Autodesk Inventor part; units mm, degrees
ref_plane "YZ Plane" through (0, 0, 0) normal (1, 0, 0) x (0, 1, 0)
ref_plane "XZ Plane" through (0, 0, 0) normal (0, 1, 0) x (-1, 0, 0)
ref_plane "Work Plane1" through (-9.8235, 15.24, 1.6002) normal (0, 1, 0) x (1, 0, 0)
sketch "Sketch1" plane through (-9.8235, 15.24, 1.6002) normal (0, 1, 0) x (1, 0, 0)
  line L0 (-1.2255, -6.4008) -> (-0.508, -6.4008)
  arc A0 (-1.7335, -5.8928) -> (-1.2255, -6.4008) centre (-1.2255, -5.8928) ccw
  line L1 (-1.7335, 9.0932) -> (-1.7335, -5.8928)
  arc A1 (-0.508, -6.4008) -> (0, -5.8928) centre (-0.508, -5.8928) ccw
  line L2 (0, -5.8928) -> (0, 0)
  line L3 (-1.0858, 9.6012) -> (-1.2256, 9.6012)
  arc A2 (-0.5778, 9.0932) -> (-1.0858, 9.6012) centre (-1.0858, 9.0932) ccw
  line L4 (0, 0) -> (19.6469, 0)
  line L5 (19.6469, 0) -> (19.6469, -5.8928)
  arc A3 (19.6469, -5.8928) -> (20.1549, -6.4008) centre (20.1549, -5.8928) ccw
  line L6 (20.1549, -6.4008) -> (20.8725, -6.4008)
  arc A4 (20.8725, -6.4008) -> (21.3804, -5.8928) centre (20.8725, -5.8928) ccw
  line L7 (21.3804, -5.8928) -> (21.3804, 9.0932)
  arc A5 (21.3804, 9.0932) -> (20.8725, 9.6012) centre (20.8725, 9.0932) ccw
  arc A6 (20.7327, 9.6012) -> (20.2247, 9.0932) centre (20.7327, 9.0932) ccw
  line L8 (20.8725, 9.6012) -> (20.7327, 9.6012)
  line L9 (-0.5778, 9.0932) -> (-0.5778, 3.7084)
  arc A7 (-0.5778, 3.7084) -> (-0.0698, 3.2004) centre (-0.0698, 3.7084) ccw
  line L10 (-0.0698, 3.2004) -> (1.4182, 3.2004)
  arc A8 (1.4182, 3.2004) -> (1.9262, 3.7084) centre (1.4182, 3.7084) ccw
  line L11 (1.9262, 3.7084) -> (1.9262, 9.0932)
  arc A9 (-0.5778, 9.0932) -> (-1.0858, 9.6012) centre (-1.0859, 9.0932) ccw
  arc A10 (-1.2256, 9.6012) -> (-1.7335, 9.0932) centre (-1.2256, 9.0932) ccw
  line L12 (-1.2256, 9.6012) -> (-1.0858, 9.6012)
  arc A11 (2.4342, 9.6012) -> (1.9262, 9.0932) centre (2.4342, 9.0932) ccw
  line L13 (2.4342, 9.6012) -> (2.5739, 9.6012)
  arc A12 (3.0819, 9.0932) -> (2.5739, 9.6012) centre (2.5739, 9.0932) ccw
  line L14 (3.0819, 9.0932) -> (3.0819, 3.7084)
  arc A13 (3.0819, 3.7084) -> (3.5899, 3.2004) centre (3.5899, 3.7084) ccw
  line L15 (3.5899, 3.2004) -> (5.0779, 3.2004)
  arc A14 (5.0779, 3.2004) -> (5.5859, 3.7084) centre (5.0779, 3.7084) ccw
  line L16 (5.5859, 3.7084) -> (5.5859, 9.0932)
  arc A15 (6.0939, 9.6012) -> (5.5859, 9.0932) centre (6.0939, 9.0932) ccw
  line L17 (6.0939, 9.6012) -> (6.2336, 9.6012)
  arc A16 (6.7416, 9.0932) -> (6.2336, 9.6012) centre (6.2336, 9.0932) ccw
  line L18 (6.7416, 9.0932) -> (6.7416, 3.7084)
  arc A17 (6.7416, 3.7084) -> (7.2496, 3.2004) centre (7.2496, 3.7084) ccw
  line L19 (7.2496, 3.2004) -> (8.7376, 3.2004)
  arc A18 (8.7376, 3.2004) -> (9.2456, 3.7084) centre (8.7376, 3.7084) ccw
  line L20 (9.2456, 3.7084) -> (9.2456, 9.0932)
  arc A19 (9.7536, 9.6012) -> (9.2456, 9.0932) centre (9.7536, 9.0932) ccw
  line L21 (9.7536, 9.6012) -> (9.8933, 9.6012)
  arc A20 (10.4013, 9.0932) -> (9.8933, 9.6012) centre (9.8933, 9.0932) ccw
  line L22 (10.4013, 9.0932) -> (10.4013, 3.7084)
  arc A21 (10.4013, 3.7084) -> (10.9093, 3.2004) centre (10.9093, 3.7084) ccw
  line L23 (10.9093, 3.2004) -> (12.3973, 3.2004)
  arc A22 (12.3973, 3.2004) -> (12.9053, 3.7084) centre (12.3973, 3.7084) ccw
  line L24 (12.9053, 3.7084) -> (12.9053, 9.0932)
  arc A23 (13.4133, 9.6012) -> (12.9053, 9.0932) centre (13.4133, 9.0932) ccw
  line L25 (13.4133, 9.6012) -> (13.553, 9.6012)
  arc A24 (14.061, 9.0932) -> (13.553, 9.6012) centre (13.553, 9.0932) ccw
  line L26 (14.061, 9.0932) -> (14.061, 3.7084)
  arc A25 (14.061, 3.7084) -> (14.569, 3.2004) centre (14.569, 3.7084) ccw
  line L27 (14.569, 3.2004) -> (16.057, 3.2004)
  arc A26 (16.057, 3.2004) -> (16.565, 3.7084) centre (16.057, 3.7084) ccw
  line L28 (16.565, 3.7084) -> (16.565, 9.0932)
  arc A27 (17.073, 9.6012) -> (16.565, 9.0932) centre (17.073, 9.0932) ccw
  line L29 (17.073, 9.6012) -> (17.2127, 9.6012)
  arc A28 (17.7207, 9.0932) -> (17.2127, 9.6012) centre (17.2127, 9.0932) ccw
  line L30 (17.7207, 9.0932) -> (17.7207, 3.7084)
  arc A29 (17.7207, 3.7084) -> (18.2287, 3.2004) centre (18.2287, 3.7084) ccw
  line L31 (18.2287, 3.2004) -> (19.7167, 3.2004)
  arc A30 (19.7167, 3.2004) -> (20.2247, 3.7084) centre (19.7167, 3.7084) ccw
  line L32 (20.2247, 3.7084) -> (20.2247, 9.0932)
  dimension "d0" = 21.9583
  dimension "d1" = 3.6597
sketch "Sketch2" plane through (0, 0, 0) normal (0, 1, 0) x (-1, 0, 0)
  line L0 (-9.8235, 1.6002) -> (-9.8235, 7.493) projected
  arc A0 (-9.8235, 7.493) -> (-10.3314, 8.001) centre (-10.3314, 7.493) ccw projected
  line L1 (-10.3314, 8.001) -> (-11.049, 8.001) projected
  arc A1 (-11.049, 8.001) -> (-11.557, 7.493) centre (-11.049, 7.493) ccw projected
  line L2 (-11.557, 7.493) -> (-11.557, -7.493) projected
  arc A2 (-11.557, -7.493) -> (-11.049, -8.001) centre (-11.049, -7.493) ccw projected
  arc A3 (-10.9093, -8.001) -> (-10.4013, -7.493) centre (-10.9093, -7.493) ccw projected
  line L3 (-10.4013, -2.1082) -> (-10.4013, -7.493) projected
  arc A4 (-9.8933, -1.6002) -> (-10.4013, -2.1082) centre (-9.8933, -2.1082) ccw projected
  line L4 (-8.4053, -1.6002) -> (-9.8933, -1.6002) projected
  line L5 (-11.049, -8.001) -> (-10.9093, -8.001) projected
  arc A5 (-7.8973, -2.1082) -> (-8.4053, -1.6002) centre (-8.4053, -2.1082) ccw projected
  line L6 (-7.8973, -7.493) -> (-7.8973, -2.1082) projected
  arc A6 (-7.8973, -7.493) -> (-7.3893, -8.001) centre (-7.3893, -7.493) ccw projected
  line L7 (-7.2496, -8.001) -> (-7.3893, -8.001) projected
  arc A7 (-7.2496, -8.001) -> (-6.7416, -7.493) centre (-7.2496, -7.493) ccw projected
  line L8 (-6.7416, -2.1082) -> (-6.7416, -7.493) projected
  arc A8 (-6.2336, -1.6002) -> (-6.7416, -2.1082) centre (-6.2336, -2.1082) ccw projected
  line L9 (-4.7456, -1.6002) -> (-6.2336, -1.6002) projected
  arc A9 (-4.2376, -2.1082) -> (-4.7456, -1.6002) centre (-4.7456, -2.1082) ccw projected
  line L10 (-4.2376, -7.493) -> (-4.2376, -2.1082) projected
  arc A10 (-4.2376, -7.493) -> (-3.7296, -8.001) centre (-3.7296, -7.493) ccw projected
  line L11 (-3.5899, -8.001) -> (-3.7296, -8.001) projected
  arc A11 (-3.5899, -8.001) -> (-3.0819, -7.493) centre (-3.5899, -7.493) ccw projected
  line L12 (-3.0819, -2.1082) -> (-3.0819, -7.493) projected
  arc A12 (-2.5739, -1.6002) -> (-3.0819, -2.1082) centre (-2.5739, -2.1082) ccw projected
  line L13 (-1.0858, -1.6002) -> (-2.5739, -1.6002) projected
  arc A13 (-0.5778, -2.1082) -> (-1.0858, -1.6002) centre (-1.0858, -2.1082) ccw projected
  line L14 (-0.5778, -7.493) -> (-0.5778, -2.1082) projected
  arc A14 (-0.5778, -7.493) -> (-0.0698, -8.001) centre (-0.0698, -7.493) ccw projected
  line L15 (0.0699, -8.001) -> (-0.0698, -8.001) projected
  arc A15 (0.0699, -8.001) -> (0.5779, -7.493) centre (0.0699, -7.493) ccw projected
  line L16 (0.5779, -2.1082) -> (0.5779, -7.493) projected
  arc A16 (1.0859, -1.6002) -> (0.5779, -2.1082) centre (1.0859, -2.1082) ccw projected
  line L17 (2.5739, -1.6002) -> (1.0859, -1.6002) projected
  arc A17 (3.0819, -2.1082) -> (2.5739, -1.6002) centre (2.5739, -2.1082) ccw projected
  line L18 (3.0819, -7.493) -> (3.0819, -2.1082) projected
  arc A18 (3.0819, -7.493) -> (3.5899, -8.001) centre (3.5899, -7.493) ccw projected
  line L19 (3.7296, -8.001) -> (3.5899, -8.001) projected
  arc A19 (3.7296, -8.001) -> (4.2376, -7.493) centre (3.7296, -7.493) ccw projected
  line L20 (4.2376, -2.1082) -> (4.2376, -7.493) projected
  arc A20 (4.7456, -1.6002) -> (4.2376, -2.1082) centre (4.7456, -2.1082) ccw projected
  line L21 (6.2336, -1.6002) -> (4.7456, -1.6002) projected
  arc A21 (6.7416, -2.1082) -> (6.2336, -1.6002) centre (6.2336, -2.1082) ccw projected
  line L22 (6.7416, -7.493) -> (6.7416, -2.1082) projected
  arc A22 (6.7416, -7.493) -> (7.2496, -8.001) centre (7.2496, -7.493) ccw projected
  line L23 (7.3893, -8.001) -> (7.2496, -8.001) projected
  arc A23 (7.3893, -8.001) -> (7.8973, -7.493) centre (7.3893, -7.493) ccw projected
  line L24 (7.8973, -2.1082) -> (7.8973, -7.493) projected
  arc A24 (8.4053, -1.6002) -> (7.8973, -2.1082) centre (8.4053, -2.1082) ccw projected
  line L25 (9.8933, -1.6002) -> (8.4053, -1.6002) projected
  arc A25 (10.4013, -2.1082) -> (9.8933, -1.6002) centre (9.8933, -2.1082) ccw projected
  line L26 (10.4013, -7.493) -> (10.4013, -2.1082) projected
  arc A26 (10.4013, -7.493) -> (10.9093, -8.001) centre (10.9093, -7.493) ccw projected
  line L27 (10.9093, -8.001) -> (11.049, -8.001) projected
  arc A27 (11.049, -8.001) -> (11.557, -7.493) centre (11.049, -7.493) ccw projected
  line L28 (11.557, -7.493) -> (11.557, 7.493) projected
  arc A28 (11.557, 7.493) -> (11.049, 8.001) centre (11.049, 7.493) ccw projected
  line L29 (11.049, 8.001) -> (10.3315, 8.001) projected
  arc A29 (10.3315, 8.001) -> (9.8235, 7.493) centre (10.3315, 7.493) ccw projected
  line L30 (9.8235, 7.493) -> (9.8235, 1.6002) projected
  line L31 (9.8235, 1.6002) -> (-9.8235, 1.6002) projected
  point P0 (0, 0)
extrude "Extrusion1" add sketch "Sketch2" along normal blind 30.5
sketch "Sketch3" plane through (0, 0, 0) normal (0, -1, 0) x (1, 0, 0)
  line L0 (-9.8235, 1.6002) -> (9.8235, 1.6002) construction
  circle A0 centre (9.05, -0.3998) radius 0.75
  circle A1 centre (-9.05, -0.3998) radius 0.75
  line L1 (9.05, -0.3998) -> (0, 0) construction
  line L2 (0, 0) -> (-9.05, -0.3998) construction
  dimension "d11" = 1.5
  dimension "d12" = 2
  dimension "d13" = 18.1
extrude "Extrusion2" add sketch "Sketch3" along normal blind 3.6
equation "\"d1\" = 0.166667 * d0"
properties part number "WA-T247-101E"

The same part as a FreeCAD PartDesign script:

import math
import FreeCAD as App
import Part
import Sketcher
Q = App.Units.Quantity

doc = App.newDocument("Part")
body = doc.addObject("PartDesign::Body", "Body")

sketch1 = body.newObject("Sketcher::SketchObject", "Sketch")
sketch1.AttachmentSupport = (doc.getObject("XZ_Plane"), [""])
sketch1.MapMode = "FlatFace"
sketch1.addGeometry([
    Part.LineSegment(App.Vector(-9.8235, 1.6002, 0), App.Vector(9.8235, 1.6002, 0)),
    Part.LineSegment(App.Vector(9.8235, 1.6002, 0), App.Vector(9.8235, 7.493, 0)),
    Part.ArcOfCircle(Part.Circle(App.Vector(10.3314, 7.493, 0), App.Vector(0, 0, 1), 0.5079), math.radians(90), math.radians(180)),
    Part.LineSegment(App.Vector(10.3314, 8.001, 0), App.Vector(11.049, 8.001, 0)),
    Part.ArcOfCircle(Part.Circle(App.Vector(11.049, 7.493, 0), App.Vector(0, 0, 1), 0.508), math.radians(0), math.radians(90)),
    Part.LineSegment(App.Vector(11.557, 7.493, 0), App.Vector(11.557, -7.493, 0)),
    Part.ArcOfCircle(Part.Circle(App.Vector(11.049, -7.493, 0), App.Vector(0, 0, 1), 0.508), math.radians(-90), math.radians(0)),
    Part.LineSegment(App.Vector(11.049, -8.001, 0), App.Vector(10.9093, -8.001, 0)),
    Part.ArcOfCircle(Part.Circle(App.Vector(10.9093, -7.493, 0), App.Vector(0, 0, 1), 0.508), math.radians(180), math.radians(270)),
    Part.LineSegment(App.Vector(10.4013, -7.493, 0), App.Vector(10.4013, -2.1082, 0)),
    Part.ArcOfCircle(Part.Circle(App.Vector(9.8933, -2.1082, 0), App.Vector(0, 0, 1), 0.508), math.radians(0), math.radians(90)),
    Part.LineSegment(App.Vector(9.8933, -1.6002, 0), App.Vector(8.4053, -1.6002, 0)),
    Part.ArcOfCircle(Part.Circle(App.Vector(8.4053, -2.1082, 0), App.Vector(0, 0, 1), 0.508), math.radians(90), math.radians(180)),
    Part.LineSegment(App.Vector(7.8973, -2.1082, 0), App.Vector(7.8973, -7.493, 0)),
    Part.ArcOfCircle(Part.Circle(App.Vector(7.3893, -7.493, 0), App.Vector(0, 0, 1), 0.508), math.radians(-90), math.radians(0)),
    Part.LineSegment(App.Vector(7.3893, -8.001, 0), App.Vector(7.2496, -8.001, 0)),
    Part.ArcOfCircle(Part.Circle(App.Vector(7.2496, -7.493, 0), App.Vector(0, 0, 1), 0.508), math.radians(180), math.radians(270)),
    Part.LineSegment(App.Vector(6.7416, -7.493, 0), App.Vector(6.7416, -2.1082, 0)),
    Part.ArcOfCircle(Part.Circle(App.Vector(6.2336, -2.1082, 0), App.Vector(0, 0, 1), 0.508), math.radians(0), math.radians(90)),
    Part.LineSegment(App.Vector(6.2336, -1.6002, 0), App.Vector(4.7456, -1.6002, 0)),
    Part.ArcOfCircle(Part.Circle(App.Vector(4.7456, -2.1082, 0), App.Vector(0, 0, 1), 0.508), math.radians(90), math.radians(180)),
    Part.LineSegment(App.Vector(4.2376, -2.1082, 0), App.Vector(4.2376, -7.493, 0)),
    Part.ArcOfCircle(Part.Circle(App.Vector(3.7296, -7.493, 0), App.Vector(0, 0, 1), 0.508), math.radians(-90), math.radians(0)),
    Part.LineSegment(App.Vector(3.7296, -8.001, 0), App.Vector(3.5899, -8.001, 0)),
    Part.ArcOfCircle(Part.Circle(App.Vector(3.5899, -7.493, 0), App.Vector(0, 0, 1), 0.508), math.radians(180), math.radians(270)),
    Part.LineSegment(App.Vector(3.0819, -7.493, 0), App.Vector(3.0819, -2.1082, 0)),
    Part.ArcOfCircle(Part.Circle(App.Vector(2.5739, -2.1082, 0), App.Vector(0, 0, 1), 0.508), math.radians(0), math.radians(90)),
    Part.LineSegment(App.Vector(2.5739, -1.6002, 0), App.Vector(1.0858, -1.6002, 0)),
    Part.ArcOfCircle(Part.Circle(App.Vector(1.0858, -2.1082, 0), App.Vector(0, 0, 1), 0.508), math.radians(90), math.radians(180)),
    Part.LineSegment(App.Vector(0.5778, -2.1082, 0), App.Vector(0.5778, -7.493, 0)),
    Part.ArcOfCircle(Part.Circle(App.Vector(0.0698, -7.493, 0), App.Vector(0, 0, 1), 0.508), math.radians(-90), math.radians(0)),
    Part.LineSegment(App.Vector(0.0698, -8.001, 0), App.Vector(-0.0699, -8.001, 0)),
    Part.ArcOfCircle(Part.Circle(App.Vector(-0.0699, -7.493, 0), App.Vector(0, 0, 1), 0.508), math.radians(180), math.radians(270)),
    Part.LineSegment(App.Vector(-0.5779, -7.493, 0), App.Vector(-0.5779, -2.1082, 0)),
    Part.ArcOfCircle(Part.Circle(App.Vector(-1.0859, -2.1082, 0), App.Vector(0, 0, 1), 0.508), math.radians(0), math.radians(90)),
    Part.LineSegment(App.Vector(-1.0859, -1.6002, 0), App.Vector(-2.5739, -1.6002, 0)),
    Part.ArcOfCircle(Part.Circle(App.Vector(-2.5739, -2.1082, 0), App.Vector(0, 0, 1), 0.508), math.radians(90), math.radians(180)),
    Part.LineSegment(App.Vector(-3.0819, -2.1082, 0), App.Vector(-3.0819, -7.493, 0)),
    Part.ArcOfCircle(Part.Circle(App.Vector(-3.5899, -7.493, 0), App.Vector(0, 0, 1), 0.508), math.radians(-90), math.radians(0)),
    Part.LineSegment(App.Vector(-3.5899, -8.001, 0), App.Vector(-3.7296, -8.001, 0)),
    Part.ArcOfCircle(Part.Circle(App.Vector(-3.7296, -7.493, 0), App.Vector(0, 0, 1), 0.508), math.radians(180), math.radians(270)),
    Part.LineSegment(App.Vector(-4.2376, -7.493, 0), App.Vector(-4.2376, -2.1082, 0)),
    Part.ArcOfCircle(Part.Circle(App.Vector(-4.7456, -2.1082, 0), App.Vector(0, 0, 1), 0.508), math.radians(0), math.radians(90)),
    Part.LineSegment(App.Vector(-4.7456, -1.6002, 0), App.Vector(-6.2336, -1.6002, 0)),
    Part.ArcOfCircle(Part.Circle(App.Vector(-6.2336, -2.1082, 0), App.Vector(0, 0, 1), 0.508), math.radians(90), math.radians(180)),
    Part.LineSegment(App.Vector(-6.7416, -2.1082, 0), App.Vector(-6.7416, -7.493, 0)),
    Part.ArcOfCircle(Part.Circle(App.Vector(-7.2496, -7.493, 0), App.Vector(0, 0, 1), 0.508), math.radians(-90), math.radians(0)),
    Part.LineSegment(App.Vector(-7.2496, -8.001, 0), App.Vector(-7.3893, -8.001, 0)),
    Part.ArcOfCircle(Part.Circle(App.Vector(-7.3893, -7.493, 0), App.Vector(0, 0, 1), 0.508), math.radians(180), math.radians(270)),
    Part.LineSegment(App.Vector(-7.8973, -7.493, 0), App.Vector(-7.8973, -2.1082, 0)),
    Part.ArcOfCircle(Part.Circle(App.Vector(-8.4053, -2.1082, 0), App.Vector(0, 0, 1), 0.508), math.radians(0), math.radians(90)),
    Part.LineSegment(App.Vector(-8.4053, -1.6002, 0), App.Vector(-9.8933, -1.6002, 0)),
    Part.ArcOfCircle(Part.Circle(App.Vector(-9.8933, -2.1082, 0), App.Vector(0, 0, 1), 0.508), math.radians(90), math.radians(180)),
    Part.LineSegment(App.Vector(-10.4013, -2.1082, 0), App.Vector(-10.4013, -7.493, 0)),
    Part.ArcOfCircle(Part.Circle(App.Vector(-10.9093, -7.493, 0), App.Vector(0, 0, 1), 0.508), math.radians(-90), math.radians(0)),
    Part.LineSegment(App.Vector(-10.9093, -8.001, 0), App.Vector(-11.049, -8.001, 0)),
    Part.ArcOfCircle(Part.Circle(App.Vector(-11.049, -7.493, 0), App.Vector(0, 0, 1), 0.508), math.radians(180), math.radians(270)),
    Part.LineSegment(App.Vector(-11.557, -7.493, 0), App.Vector(-11.557, 7.493, 0)),
    Part.ArcOfCircle(Part.Circle(App.Vector(-11.049, 7.493, 0), App.Vector(0, 0, 1), 0.508), math.radians(90), math.radians(180)),
    Part.LineSegment(App.Vector(-11.049, 8.001, 0), App.Vector(-10.3315, 8.001, 0)),
    Part.ArcOfCircle(Part.Circle(App.Vector(-10.3315, 7.493, 0), App.Vector(0, 0, 1), 0.508), math.radians(0), math.radians(90)),
    Part.LineSegment(App.Vector(-9.8235, 7.493, 0), App.Vector(-9.8235, 1.6002, 0)),
], False)
sketch1.addConstraint([
    Sketcher.Constraint("Coincident", 0, 2, 1, 1),
    Sketcher.Constraint("Tangent", 1, 2, 2, 2),
    Sketcher.Constraint("Tangent", 2, 1, 3, 1),
    Sketcher.Constraint("Tangent", 3, 2, 4, 2),
    Sketcher.Constraint("Tangent", 4, 1, 5, 1),
    Sketcher.Constraint("Tangent", 5, 2, 6, 2),
    Sketcher.Constraint("Tangent", 6, 1, 7, 1),
    Sketcher.Constraint("Tangent", 7, 2, 8, 2),
    Sketcher.Constraint("Tangent", 8, 1, 9, 1),
    Sketcher.Constraint("Tangent", 9, 2, 10, 1),
    Sketcher.Constraint("Tangent", 10, 2, 11, 1),
    Sketcher.Constraint("Tangent", 11, 2, 12, 1),
    Sketcher.Constraint("Tangent", 12, 2, 13, 1),
    Sketcher.Constraint("Tangent", 13, 2, 14, 2),
    Sketcher.Constraint("Tangent", 14, 1, 15, 1),
    Sketcher.Constraint("Tangent", 15, 2, 16, 2),
    Sketcher.Constraint("Tangent", 16, 1, 17, 1),
    Sketcher.Constraint("Tangent", 17, 2, 18, 1),
    Sketcher.Constraint("Tangent", 18, 2, 19, 1),
    Sketcher.Constraint("Tangent", 19, 2, 20, 1),
    Sketcher.Constraint("Tangent", 20, 2, 21, 1),
    Sketcher.Constraint("Tangent", 21, 2, 22, 2),
    Sketcher.Constraint("Tangent", 22, 1, 23, 1),
    Sketcher.Constraint("Tangent", 23, 2, 24, 2),
    Sketcher.Constraint("Tangent", 24, 1, 25, 1),
    Sketcher.Constraint("Tangent", 25, 2, 26, 1),
    Sketcher.Constraint("Tangent", 26, 2, 27, 1),
    Sketcher.Constraint("Tangent", 27, 2, 28, 1),
    Sketcher.Constraint("Tangent", 28, 2, 29, 1),
    Sketcher.Constraint("Tangent", 29, 2, 30, 2),
    Sketcher.Constraint("Tangent", 30, 1, 31, 1),
    Sketcher.Constraint("Tangent", 31, 2, 32, 2),
    Sketcher.Constraint("Tangent", 32, 1, 33, 1),
    Sketcher.Constraint("Tangent", 33, 2, 34, 1),
    Sketcher.Constraint("Tangent", 34, 2, 35, 1),
    Sketcher.Constraint("Tangent", 35, 2, 36, 1),
    Sketcher.Constraint("Tangent", 36, 2, 37, 1),
    Sketcher.Constraint("Tangent", 37, 2, 38, 2),
    Sketcher.Constraint("Tangent", 38, 1, 39, 1),
    Sketcher.Constraint("Tangent", 39, 2, 40, 2),
    Sketcher.Constraint("Tangent", 40, 1, 41, 1),
    Sketcher.Constraint("Tangent", 41, 2, 42, 1),
    Sketcher.Constraint("Tangent", 42, 2, 43, 1),
    Sketcher.Constraint("Tangent", 43, 2, 44, 1),
    Sketcher.Constraint("Tangent", 44, 2, 45, 1),
    Sketcher.Constraint("Tangent", 45, 2, 46, 2),
    Sketcher.Constraint("Tangent", 46, 1, 47, 1),
    Sketcher.Constraint("Tangent", 47, 2, 48, 2),
    Sketcher.Constraint("Tangent", 48, 1, 49, 1),
    Sketcher.Constraint("Tangent", 49, 2, 50, 1),
    Sketcher.Constraint("Tangent", 50, 2, 51, 1),
    Sketcher.Constraint("Tangent", 51, 2, 52, 1),
    Sketcher.Constraint("Tangent", 52, 2, 53, 1),
    Sketcher.Constraint("Tangent", 53, 2, 54, 2),
    Sketcher.Constraint("Tangent", 54, 1, 55, 1),
    Sketcher.Constraint("Tangent", 55, 2, 56, 2),
    Sketcher.Constraint("Tangent", 56, 1, 57, 1),
    Sketcher.Constraint("Tangent", 57, 2, 58, 2),
    Sketcher.Constraint("Tangent", 58, 1, 59, 1),
    Sketcher.Constraint("Tangent", 59, 2, 60, 2),
    Sketcher.Constraint("Tangent", 60, 1, 61, 1),
    Sketcher.Constraint("Coincident", 61, 2, 0, 1),
    Sketcher.Constraint("Horizontal", 0),
    Sketcher.Constraint("Vertical", 1),
    Sketcher.Constraint("Horizontal", 3),
    Sketcher.Constraint("Vertical", 5),
    Sketcher.Constraint("Horizontal", 7),
    Sketcher.Constraint("Vertical", 9),
    Sketcher.Constraint("Horizontal", 11),
    Sketcher.Constraint("Vertical", 13),
    Sketcher.Constraint("Horizontal", 15),
    Sketcher.Constraint("Vertical", 17),
    Sketcher.Constraint("Horizontal", 19),
    Sketcher.Constraint("Vertical", 21),
    Sketcher.Constraint("Horizontal", 23),
    Sketcher.Constraint("Vertical", 25),
    Sketcher.Constraint("Horizontal", 27),
    Sketcher.Constraint("Vertical", 29),
    Sketcher.Constraint("Horizontal", 31),
    Sketcher.Constraint("Vertical", 33),
    Sketcher.Constraint("Horizontal", 35),
    Sketcher.Constraint("Vertical", 37),
    Sketcher.Constraint("Horizontal", 39),
    Sketcher.Constraint("Vertical", 41),
    Sketcher.Constraint("Horizontal", 43),
    Sketcher.Constraint("Vertical", 45),
    Sketcher.Constraint("Horizontal", 47),
    Sketcher.Constraint("Vertical", 49),
    Sketcher.Constraint("Horizontal", 51),
    Sketcher.Constraint("Vertical", 53),
    Sketcher.Constraint("Horizontal", 55),
    Sketcher.Constraint("Vertical", 57),
    Sketcher.Constraint("Horizontal", 59),
    Sketcher.Constraint("Vertical", 61),
    Sketcher.Constraint("Equal", 2, 4),
    Sketcher.Constraint("Equal", 4, 6),
    Sketcher.Constraint("Equal", 6, 8),
    Sketcher.Constraint("Equal", 8, 10),
    Sketcher.Constraint("Equal", 10, 12),
    Sketcher.Constraint("Equal", 12, 14),
    Sketcher.Constraint("Equal", 14, 16),
    Sketcher.Constraint("Equal", 16, 18),
    Sketcher.Constraint("Equal", 18, 20),
    Sketcher.Constraint("Equal", 20, 22),
    Sketcher.Constraint("Equal", 22, 24),
    Sketcher.Constraint("Equal", 24, 26),
    Sketcher.Constraint("Equal", 26, 28),
    Sketcher.Constraint("Equal", 28, 30),
    Sketcher.Constraint("Equal", 30, 32),
    Sketcher.Constraint("Equal", 32, 34),
    Sketcher.Constraint("Equal", 34, 36),
    Sketcher.Constraint("Equal", 36, 38),
    Sketcher.Constraint("Equal", 38, 40),
    Sketcher.Constraint("Equal", 40, 42),
    Sketcher.Constraint("Equal", 42, 44),
    Sketcher.Constraint("Equal", 44, 46),
    Sketcher.Constraint("Equal", 46, 48),
    Sketcher.Constraint("Equal", 48, 50),
    Sketcher.Constraint("Equal", 50, 52),
    Sketcher.Constraint("Equal", 52, 54),
    Sketcher.Constraint("Equal", 54, 56),
    Sketcher.Constraint("Equal", 56, 58),
    Sketcher.Constraint("Equal", 58, 60),
    Sketcher.Constraint("Symmetric", 4, 3, 56, 3, -1, 1),
    Sketcher.Constraint("Symmetric", 28, 3, 34, 3, -2),
    Sketcher.Constraint("Symmetric", 24, 3, 38, 3, -2),
    Sketcher.Constraint("Symmetric", 20, 3, 42, 3, -2),
    Sketcher.Constraint("Symmetric", 16, 3, 46, 3, -2),
    Sketcher.Constraint("Symmetric", 12, 3, 50, 3, -2),
    Sketcher.Constraint("Symmetric", 8, 3, 54, 3, -2),
    Sketcher.Constraint("Symmetric", 2, 3, 60, 3, -2),
    Sketcher.Constraint("Horizontal", 8, 3, 14, 3),
    Sketcher.Constraint("Horizontal", 12, 3, 18, 3),
    Sketcher.Constraint("Horizontal", 16, 3, 22, 3),
    Sketcher.Constraint("Horizontal", 20, 3, 26, 3),
    Sketcher.Constraint("Horizontal", 24, 3, 30, 3),
    Sketcher.Constraint("Equal", 7, 15),
    Sketcher.Constraint("Equal", 11, 19),
    Sketcher.Constraint("Equal", 15, 23),
    Sketcher.Constraint("Equal", 19, 27),
    Sketcher.Constraint("Equal", 23, 31),
    Sketcher.Constraint("Radius", 2, Q("0.02 in")),
    Sketcher.Constraint("DistanceY", 5, 2, 5, 1, Q("0.59 in")),
    Sketcher.Constraint("DistanceY", 1, 1, 1, 2, Q("0.232 in")),
    Sketcher.Constraint("DistanceY", 9, 1, 9, 2, Q("0.212 in")),
    Sketcher.Constraint("DistanceX", 0, 1, 0, 2, Q("0.7735 in")),
    Sketcher.Constraint("DistanceX", 7, 2, 7, 1, Q("0.0055 in")),
    Sketcher.Constraint("DistanceX", -1, 1, 4, 3, Q("0.435 in")),
])
pad1 = body.newObject("PartDesign::Pad", "Pad")
pad1.Profile = sketch1
pad1.Length = 30.5
pad1.Reversed = True

sketch2 = body.newObject("Sketcher::SketchObject", "Sketch001")
sketch2.AttachmentSupport = (doc.getObject("XZ_Plane"), [""])
sketch2.MapMode = "FlatFace"
sketch2.addGeometry([
    Part.Circle(App.Vector(9.05, -0.3998, 0), App.Vector(0, 0, 1), 0.75),
    Part.Circle(App.Vector(-9.05, -0.3998, 0), App.Vector(0, 0, 1), 0.75),
], False)
sketch2.addConstraint([
    Sketcher.Constraint("Equal", 0, 1),
    Sketcher.Constraint("Symmetric", 0, 3, 1, 3, -2),
    Sketcher.Constraint("Diameter", 0, Q("1.5 mm")),
    Sketcher.Constraint("DistanceX", 1, 3, 0, 3, Q("0.7126 in")),
    Sketcher.Constraint("DistanceY", 0, 3, -1, 1, Q("0.3998 mm")),
])
pad2 = body.newObject("PartDesign::Pad", "Pad001")
pad2.Profile = sketch2
pad2.Length = 3.6

doc.recompute()
